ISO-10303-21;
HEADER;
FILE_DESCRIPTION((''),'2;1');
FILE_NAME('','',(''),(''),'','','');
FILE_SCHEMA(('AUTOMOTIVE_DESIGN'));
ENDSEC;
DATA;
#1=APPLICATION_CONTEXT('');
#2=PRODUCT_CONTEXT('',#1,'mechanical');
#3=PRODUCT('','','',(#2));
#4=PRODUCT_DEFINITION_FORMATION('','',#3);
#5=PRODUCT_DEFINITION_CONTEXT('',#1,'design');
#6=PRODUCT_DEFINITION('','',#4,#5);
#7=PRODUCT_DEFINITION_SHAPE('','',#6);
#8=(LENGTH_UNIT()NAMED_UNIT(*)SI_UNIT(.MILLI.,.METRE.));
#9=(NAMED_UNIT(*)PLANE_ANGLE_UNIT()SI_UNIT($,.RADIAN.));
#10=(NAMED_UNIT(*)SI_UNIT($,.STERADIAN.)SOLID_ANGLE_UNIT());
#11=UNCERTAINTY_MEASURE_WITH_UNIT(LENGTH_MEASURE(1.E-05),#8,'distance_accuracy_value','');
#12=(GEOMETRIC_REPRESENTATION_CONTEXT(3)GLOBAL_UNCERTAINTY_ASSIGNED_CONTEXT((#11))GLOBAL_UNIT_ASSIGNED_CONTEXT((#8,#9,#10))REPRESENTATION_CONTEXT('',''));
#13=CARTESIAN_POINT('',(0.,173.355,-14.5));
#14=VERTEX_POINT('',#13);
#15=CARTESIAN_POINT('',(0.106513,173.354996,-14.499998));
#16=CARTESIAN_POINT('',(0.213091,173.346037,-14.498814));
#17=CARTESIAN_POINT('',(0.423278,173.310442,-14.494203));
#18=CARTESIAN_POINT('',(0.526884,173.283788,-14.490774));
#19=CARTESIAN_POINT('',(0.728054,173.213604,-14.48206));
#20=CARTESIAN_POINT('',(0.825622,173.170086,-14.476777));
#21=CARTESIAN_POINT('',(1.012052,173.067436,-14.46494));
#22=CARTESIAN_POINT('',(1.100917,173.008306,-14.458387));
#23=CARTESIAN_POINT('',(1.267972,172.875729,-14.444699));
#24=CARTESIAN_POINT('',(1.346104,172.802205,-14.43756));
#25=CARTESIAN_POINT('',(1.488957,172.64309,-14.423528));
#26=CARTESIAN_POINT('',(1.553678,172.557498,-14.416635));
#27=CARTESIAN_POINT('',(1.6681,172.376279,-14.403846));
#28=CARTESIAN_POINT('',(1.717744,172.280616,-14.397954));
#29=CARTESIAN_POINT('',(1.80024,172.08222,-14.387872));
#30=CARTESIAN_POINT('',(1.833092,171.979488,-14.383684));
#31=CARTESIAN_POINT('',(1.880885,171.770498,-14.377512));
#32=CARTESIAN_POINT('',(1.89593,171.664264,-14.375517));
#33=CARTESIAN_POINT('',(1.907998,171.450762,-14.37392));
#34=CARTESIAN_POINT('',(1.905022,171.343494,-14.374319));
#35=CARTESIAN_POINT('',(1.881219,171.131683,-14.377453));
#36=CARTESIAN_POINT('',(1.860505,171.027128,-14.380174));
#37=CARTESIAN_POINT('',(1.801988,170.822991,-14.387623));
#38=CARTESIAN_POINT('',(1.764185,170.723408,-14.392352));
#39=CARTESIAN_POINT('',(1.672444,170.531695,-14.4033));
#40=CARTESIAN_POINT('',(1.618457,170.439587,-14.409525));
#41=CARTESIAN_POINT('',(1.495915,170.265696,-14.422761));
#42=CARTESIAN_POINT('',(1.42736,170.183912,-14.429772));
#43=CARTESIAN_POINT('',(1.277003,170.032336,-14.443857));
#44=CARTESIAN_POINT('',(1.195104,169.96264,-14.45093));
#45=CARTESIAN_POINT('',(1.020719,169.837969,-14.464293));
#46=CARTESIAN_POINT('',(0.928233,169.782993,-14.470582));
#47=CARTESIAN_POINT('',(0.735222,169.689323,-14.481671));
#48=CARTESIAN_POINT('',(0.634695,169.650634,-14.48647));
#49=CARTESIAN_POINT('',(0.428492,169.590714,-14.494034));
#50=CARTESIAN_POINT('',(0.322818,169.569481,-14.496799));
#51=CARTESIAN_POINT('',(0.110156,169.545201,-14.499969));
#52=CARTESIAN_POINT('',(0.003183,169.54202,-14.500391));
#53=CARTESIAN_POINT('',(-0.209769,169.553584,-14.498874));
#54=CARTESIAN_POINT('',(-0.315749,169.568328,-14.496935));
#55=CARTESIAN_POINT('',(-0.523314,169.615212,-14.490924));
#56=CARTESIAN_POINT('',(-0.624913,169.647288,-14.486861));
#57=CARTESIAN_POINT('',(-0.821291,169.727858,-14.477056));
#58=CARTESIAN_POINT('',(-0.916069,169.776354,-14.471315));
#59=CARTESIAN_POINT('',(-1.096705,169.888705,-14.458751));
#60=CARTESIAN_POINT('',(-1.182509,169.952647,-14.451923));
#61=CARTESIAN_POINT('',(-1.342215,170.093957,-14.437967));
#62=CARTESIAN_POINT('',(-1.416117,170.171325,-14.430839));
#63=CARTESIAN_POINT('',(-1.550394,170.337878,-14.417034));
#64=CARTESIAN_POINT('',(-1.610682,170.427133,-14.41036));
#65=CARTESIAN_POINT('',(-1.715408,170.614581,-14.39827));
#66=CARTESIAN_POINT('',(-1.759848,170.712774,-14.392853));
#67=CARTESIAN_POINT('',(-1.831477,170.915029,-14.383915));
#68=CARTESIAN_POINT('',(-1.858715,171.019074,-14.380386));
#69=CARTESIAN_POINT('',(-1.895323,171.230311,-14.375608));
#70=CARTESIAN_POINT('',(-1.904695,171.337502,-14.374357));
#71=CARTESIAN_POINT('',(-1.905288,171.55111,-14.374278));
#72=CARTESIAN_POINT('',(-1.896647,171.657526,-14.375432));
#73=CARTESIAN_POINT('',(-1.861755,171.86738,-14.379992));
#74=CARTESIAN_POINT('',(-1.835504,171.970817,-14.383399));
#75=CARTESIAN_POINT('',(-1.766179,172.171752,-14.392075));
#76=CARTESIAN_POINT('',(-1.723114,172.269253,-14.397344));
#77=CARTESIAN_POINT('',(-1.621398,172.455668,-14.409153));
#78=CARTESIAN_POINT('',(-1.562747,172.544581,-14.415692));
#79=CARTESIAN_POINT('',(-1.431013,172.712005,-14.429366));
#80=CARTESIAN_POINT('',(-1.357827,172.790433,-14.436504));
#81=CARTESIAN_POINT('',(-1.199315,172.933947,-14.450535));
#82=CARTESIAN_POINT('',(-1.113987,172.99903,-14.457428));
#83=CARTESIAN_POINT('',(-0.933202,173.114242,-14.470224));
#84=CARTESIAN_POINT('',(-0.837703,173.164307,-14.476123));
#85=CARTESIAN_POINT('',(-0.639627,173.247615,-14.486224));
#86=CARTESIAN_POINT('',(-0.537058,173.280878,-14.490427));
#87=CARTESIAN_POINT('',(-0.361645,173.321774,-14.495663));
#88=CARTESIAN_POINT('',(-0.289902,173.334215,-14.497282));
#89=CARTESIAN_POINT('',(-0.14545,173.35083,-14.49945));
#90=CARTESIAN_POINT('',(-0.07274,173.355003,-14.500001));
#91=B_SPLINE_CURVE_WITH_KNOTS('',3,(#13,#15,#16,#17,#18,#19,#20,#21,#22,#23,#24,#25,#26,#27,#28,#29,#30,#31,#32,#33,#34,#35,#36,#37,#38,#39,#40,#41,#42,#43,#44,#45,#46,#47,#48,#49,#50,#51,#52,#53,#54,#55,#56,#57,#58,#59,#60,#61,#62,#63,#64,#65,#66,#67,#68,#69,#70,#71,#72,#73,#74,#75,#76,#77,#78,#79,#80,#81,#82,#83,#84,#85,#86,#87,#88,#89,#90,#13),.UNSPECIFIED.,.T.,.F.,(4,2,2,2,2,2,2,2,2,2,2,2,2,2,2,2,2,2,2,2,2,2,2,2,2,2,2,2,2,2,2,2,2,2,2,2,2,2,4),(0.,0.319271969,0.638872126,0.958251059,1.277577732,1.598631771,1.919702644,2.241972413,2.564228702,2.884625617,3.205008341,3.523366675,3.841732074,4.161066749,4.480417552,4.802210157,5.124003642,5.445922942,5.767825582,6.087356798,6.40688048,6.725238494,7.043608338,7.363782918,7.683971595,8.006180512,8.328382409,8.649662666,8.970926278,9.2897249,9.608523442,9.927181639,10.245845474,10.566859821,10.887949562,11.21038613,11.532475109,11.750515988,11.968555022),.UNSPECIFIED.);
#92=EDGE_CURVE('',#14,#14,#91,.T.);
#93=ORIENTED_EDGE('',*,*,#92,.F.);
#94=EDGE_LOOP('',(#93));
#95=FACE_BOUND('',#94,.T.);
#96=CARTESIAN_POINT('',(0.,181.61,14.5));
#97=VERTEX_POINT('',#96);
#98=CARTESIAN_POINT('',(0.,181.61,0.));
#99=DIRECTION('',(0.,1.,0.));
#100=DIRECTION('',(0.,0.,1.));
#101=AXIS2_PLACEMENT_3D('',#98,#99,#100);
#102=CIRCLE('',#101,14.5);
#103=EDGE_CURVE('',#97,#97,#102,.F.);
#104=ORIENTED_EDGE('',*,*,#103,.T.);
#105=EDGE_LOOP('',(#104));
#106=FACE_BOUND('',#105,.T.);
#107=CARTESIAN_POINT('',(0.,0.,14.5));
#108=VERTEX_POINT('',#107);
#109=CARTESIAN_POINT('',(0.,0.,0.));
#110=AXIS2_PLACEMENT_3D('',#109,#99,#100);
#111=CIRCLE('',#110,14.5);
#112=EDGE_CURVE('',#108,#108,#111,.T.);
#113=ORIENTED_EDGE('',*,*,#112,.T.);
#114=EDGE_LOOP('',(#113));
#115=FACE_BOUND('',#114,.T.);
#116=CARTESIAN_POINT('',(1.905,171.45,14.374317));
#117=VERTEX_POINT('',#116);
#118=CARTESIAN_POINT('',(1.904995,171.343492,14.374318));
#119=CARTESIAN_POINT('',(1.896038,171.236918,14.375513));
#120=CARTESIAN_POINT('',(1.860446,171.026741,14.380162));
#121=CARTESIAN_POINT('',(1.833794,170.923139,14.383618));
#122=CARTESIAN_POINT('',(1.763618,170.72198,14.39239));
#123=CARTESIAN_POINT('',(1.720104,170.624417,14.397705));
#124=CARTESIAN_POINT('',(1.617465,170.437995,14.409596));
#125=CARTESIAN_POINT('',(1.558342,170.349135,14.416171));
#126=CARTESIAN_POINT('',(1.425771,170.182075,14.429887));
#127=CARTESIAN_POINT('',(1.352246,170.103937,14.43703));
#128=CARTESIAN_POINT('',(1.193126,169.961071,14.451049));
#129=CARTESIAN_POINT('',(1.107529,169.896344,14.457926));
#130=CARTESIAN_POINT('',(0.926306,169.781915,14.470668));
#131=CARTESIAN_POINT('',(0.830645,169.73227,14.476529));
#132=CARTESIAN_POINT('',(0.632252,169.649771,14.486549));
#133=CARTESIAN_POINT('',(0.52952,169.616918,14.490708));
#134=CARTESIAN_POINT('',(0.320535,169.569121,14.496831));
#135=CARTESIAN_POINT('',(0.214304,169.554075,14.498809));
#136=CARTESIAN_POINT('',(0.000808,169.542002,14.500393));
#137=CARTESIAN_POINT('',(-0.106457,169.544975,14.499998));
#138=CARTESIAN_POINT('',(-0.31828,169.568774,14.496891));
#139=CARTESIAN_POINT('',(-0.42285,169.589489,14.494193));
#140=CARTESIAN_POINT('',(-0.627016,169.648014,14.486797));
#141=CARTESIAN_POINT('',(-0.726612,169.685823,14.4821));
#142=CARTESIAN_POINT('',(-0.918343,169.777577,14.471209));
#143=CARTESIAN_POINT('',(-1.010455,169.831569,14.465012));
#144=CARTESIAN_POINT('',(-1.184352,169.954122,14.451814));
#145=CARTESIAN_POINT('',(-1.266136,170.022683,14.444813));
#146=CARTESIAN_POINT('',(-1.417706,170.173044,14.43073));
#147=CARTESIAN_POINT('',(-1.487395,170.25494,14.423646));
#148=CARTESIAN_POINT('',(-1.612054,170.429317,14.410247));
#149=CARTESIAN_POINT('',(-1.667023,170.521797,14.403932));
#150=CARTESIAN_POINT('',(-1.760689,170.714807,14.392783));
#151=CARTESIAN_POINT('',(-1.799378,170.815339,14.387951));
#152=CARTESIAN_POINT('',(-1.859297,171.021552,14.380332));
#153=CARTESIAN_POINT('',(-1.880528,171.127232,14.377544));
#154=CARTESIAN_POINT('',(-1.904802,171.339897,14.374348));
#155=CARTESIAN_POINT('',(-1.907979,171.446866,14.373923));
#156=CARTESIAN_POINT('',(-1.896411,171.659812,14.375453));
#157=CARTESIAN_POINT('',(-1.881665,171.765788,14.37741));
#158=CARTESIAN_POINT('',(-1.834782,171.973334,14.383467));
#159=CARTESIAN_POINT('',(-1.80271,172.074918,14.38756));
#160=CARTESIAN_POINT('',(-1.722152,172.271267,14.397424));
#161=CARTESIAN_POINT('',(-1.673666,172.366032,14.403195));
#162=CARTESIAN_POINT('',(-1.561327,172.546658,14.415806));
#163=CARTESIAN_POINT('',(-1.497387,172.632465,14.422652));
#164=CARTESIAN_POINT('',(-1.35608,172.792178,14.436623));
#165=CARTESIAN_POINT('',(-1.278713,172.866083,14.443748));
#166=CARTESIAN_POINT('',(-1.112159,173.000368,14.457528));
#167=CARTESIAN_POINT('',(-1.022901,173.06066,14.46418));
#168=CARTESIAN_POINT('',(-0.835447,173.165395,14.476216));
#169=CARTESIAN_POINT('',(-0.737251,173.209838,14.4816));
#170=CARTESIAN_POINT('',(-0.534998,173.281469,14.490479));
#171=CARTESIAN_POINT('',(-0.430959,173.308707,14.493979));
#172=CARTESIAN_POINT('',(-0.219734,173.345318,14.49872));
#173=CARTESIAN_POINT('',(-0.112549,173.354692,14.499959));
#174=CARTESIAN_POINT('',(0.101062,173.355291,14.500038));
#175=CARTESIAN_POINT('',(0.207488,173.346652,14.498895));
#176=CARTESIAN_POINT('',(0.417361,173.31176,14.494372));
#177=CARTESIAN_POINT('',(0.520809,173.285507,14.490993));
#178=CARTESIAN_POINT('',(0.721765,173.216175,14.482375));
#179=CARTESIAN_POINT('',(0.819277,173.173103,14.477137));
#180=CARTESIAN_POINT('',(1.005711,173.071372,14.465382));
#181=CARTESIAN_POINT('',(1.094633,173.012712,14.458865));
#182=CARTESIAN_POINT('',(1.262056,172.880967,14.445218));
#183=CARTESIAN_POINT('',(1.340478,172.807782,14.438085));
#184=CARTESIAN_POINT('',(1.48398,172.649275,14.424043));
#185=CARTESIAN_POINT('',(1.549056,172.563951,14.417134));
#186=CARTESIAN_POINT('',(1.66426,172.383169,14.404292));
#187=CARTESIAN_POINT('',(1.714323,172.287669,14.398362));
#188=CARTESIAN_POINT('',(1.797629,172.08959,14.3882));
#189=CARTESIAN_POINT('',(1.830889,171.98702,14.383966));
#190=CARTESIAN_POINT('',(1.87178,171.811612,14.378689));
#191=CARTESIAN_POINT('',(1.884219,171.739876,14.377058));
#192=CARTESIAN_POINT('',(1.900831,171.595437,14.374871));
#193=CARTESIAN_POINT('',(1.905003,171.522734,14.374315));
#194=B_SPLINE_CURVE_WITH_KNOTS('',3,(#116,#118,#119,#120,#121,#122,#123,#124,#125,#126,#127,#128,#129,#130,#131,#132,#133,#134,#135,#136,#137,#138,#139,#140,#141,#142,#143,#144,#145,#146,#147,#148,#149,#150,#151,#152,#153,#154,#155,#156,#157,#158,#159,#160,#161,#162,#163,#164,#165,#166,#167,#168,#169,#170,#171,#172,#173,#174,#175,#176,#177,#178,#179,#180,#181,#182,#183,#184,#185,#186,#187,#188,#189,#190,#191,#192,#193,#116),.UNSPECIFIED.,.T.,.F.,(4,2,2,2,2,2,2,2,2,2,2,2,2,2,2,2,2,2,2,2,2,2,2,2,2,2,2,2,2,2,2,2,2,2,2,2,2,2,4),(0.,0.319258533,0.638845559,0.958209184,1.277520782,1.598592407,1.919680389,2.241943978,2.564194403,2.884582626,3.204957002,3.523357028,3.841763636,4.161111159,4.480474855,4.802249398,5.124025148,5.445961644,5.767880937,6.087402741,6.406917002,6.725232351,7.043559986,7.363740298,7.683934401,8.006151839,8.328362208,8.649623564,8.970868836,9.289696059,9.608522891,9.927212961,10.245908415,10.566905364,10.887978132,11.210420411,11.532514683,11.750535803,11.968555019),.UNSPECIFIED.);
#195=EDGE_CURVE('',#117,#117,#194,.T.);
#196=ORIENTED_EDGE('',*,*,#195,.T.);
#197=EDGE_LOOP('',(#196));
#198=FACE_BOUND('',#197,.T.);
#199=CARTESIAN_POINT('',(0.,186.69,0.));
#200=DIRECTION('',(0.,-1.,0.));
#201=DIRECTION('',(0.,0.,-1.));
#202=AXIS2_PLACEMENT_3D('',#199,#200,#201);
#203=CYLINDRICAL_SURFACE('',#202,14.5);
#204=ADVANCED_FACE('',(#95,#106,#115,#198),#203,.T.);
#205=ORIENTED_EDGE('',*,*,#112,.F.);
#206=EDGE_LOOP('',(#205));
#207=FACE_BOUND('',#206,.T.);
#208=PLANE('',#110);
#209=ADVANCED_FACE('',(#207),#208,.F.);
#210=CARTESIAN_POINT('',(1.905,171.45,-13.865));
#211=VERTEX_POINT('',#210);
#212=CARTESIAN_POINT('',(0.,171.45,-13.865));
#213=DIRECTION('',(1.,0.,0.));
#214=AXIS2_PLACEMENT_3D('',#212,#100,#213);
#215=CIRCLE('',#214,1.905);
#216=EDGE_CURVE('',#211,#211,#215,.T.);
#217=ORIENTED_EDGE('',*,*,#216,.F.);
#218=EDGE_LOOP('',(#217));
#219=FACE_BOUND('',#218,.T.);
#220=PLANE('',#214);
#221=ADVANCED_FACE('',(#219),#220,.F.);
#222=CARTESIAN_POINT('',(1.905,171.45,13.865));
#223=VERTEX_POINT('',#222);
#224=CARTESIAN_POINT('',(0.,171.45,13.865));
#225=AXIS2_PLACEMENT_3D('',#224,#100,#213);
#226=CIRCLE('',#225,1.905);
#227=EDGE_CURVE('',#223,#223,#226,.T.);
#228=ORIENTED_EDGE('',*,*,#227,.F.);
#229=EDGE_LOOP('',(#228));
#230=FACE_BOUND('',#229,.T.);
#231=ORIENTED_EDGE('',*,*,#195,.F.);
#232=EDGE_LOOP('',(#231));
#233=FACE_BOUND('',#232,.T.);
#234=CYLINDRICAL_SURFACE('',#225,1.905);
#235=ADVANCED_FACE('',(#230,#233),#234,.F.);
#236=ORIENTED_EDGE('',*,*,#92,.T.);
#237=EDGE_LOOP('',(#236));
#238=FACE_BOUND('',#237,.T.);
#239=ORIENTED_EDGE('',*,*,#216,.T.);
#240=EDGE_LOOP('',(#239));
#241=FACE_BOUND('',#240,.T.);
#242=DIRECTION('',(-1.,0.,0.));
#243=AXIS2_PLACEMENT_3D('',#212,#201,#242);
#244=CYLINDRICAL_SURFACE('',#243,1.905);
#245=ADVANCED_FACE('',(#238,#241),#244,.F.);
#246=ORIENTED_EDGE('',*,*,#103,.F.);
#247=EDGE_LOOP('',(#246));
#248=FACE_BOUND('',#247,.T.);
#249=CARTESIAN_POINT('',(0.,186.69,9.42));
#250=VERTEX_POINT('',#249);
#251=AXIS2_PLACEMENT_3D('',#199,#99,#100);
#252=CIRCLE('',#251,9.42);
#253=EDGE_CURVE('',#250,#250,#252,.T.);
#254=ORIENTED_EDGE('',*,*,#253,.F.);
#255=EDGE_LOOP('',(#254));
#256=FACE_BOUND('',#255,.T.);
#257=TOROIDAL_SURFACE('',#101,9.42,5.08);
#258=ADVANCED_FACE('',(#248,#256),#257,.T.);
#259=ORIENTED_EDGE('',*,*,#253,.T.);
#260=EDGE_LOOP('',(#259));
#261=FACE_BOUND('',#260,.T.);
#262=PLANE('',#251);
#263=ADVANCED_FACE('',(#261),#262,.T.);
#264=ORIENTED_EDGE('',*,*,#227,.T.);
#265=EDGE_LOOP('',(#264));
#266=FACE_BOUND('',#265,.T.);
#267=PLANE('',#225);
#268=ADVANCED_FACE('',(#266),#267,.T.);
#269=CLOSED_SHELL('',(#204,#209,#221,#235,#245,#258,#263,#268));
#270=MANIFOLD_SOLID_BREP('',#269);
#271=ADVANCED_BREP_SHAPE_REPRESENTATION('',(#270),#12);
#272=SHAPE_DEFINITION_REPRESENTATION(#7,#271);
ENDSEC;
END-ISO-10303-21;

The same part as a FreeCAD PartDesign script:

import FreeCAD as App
import Part
import Sketcher
Q = App.Units.Quantity


def edges_at(feature, points):
    """Names of the edges that pass closest to the given points."""
    edges = feature.Shape.Edges
    near = lambda p: min(range(len(edges)), key=lambda i: edges[i].distToShape(Part.Vertex(*p))[0])
    return sorted({f"Edge{near(p) + 1}" for p in points})

doc = App.newDocument("Part")
body = doc.addObject("PartDesign::Body", "Body")

# Sketch on XZ plane
sketch1 = body.newObject("Sketcher::SketchObject", "Sketch")
sketch1.AttachmentSupport = (doc.getObject("XZ_Plane"), [""])
sketch1.MapMode = "FlatFace"
sketch1.addGeometry(Part.Circle(App.Vector(0, 0, 0), App.Vector(0, 0, 1), 14), False)
sketch1.addConstraint(Sketcher.Constraint("Coincident", 0, 3, -1, 1))
sketch1.addConstraint(Sketcher.Constraint("Diameter", 0, Q("29 mm")))
pad1 = body.newObject("PartDesign::Pad", "Pad")
pad1.Profile = sketch1
pad1.Length = Q("7.35 in")
pad1.Reversed = True
doc.recompute()

fillet = body.newObject("PartDesign::Fillet", "Fillet")
fillet.Base = (pad1, edges_at(pad1, [(-14.5, 186.69, 0)]))
fillet.Radius = Q("0.2 in")

# Sketch on XY plane
sketch2 = body.newObject("Sketcher::SketchObject", "Sketch001")
sketch2.AttachmentSupport = (doc.getObject("XY_Plane"), [""])
sketch2.MapMode = "FlatFace"
sketch2.AttachmentOffset = App.Placement(App.Vector(0, 0, -14.5), App.Rotation())
sketch2.addGeometry(Part.Circle(App.Vector(0, 171.4, 0), App.Vector(0, 0, 1), 1.9), False)
sketch2.addConstraint(Sketcher.Constraint("PointOnObject", 0, 3, -2))
sketch2.addConstraint(Sketcher.Constraint("Diameter", 0, Q("0.15 in")))
sketch2.addConstraint(Sketcher.Constraint("DistanceY", -1, 1, 0, 3, Q("6.75 in")))
pocket1 = body.newObject("PartDesign::Pocket", "Pocket")
pocket1.Profile = sketch2
pocket1.Length = Q("0.025 in")
pocket1.Reversed = True

# Sketch on XY plane
sketch3 = body.newObject("Sketcher::SketchObject", "Sketch002")
sketch3.AttachmentSupport = (doc.getObject("XY_Plane"), [""])
sketch3.MapMode = "FlatFace"
sketch3.AttachmentOffset = App.Placement(App.Vector(0, 0, 14.5), App.Rotation())
sketch3.addGeometry(Part.Circle(App.Vector(0, 171.4, 0), App.Vector(0, 0, 1), 1.9), False)
sketch3.addConstraint(Sketcher.Constraint("PointOnObject", 0, 3, -2))
sketch3.addConstraint(Sketcher.Constraint("Diameter", 0, Q("0.15 in")))
sketch3.addConstraint(Sketcher.Constraint("DistanceY", -1, 1, 0, 3, Q("6.75 in")))
pocket2 = body.newObject("PartDesign::Pocket", "Pocket001")
pocket2.Profile = sketch3
pocket2.Length = Q("0.025 in")

doc.recompute()
